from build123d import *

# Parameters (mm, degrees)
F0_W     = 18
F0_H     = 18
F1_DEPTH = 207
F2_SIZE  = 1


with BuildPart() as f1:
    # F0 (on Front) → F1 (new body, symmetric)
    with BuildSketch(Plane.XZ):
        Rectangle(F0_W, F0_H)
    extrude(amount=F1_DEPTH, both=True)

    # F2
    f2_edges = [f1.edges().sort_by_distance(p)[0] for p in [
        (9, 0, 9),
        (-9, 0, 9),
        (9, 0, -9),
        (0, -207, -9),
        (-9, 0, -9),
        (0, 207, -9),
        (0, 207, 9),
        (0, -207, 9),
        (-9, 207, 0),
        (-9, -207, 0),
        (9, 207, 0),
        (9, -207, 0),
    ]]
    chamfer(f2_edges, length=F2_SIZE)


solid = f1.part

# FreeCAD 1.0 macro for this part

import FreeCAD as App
import Part
import Sketcher
from FreeCAD import Vector
Q = App.Units.Quantity


def add_polygon(sketch, points):
    """Adds a closed chain of lines whose ends are joined by coincident constraints."""
    first, n = sketch.GeometryCount, len(points)
    for a, b in zip(points, points[1:] + points[:1]):
        sketch.addGeometry(Part.LineSegment(App.Vector(*a, 0), App.Vector(*b, 0)), False)
    for i in range(n):
        sketch.addConstraint(Sketcher.Constraint("Coincident", first + i, 2, first + (i + 1) % n, 1))

doc = App.newDocument("Part")
body = doc.addObject("PartDesign::Body", "Body")

sketch1 = body.newObject("Sketcher::SketchObject", "Sketch")
sketch1.AttachmentSupport = (doc.getObject("XZ_Plane"), [""])
sketch1.MapMode = "FlatFace"
add_polygon(sketch1, [(-9, 9), (-9, -9), (9, -9), (9, 9)])
sketch1.addConstraint([
    Sketcher.Constraint("Vertical", 0),
    Sketcher.Constraint("Horizontal", 1),
    Sketcher.Constraint("Vertical", 2),
    Sketcher.Constraint("Horizontal", 3),
    Sketcher.Constraint("Symmetric", 0, 2, 2, 2, -1, 1),
    Sketcher.Constraint("Equal", 3, 0),
    Sketcher.Constraint("DistanceX", 1, 1, 1, 2, Q("18 mm")),
])
pad1 = body.newObject("PartDesign::Pad", "Pad")
pad1.Profile = sketch1
pad1.Length = 414
pad1.Midplane = True
doc.recompute()

chamfer = body.newObject("PartDesign::Chamfer", "Chamfer")
chamfer.Base = (pad1, ["Edge1"])
chamfer.UseAllEdges = True
chamfer.Size = 1

doc.recompute()
